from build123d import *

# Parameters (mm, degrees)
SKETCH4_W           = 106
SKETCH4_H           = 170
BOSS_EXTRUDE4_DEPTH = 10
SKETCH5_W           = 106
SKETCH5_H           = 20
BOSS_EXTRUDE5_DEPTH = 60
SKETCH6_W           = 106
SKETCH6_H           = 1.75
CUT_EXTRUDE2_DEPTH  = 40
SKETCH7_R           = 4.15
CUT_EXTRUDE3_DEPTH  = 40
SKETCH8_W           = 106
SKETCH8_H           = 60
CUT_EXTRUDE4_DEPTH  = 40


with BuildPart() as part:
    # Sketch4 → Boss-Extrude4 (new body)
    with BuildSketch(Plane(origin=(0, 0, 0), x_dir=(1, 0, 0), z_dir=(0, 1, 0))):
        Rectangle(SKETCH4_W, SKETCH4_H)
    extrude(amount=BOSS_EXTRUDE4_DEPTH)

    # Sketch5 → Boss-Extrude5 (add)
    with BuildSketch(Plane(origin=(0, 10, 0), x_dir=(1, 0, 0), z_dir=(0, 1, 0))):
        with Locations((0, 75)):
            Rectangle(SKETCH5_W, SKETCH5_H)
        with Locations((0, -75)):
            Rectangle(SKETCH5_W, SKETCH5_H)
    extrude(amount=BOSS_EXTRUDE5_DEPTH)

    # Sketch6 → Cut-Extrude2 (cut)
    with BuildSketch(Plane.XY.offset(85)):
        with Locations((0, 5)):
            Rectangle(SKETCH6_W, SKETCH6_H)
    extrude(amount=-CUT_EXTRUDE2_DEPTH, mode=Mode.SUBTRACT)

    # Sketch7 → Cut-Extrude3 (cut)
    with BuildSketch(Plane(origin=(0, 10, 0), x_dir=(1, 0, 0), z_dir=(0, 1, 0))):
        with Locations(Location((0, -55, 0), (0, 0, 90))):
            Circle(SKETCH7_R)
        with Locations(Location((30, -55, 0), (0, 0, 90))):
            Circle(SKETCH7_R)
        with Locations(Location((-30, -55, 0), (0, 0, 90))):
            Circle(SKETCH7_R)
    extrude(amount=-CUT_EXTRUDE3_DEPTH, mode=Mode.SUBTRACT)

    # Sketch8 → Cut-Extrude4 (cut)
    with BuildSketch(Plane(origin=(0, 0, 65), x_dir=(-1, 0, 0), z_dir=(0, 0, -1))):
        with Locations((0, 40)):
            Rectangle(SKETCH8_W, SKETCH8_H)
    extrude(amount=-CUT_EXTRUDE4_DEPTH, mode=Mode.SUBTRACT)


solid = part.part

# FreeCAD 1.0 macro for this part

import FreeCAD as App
import Part
import Sketcher

V = App.Vector


def add_polygon(sketch, points):
    """Adds a closed chain of lines whose ends are joined by coincident constraints."""
    first, n = sketch.GeometryCount, len(points)
    for a, b in zip(points, points[1:] + points[:1]):
        sketch.addGeometry(Part.LineSegment(App.Vector(*a, 0), App.Vector(*b, 0)), False)
    for i in range(n):
        sketch.addConstraint(Sketcher.Constraint("Coincident", first + i, 2, first + (i + 1) % n, 1))

doc = App.newDocument("Part")
body = doc.addObject("PartDesign::Body", "Body")

# Sketch on XZ plane
sketch1 = body.newObject("Sketcher::SketchObject", "Sketch")
sketch1.AttachmentSupport = (doc.getObject("XZ_Plane"), [""])
sketch1.MapMode = "FlatFace"
add_polygon(sketch1, [(-53, -85), (-53, 85), (53, 85), (53, -85)])  # lines 0-3
sketch1.addConstraint([
    Sketcher.Constraint("Vertical", 0),
    Sketcher.Constraint("Horizontal", 1),
    Sketcher.Constraint("Vertical", 2),
    Sketcher.Constraint("Horizontal", 3),
    Sketcher.Constraint("Symmetric", 0, 2, 2, 2, -1, 1),
    Sketcher.Constraint("DistanceX", 1, 1, 1, 2, 106.0),
    Sketcher.Constraint("DistanceY", 0, 1, 0, 2, 170.0),
])
pad1 = body.newObject("PartDesign::Pad", "Pad")
pad1.Profile = sketch1
pad1.Length = 10
pad1.Reversed = True

# Sketch on XZ plane
sketch2 = body.newObject("Sketcher::SketchObject", "Sketch001")
sketch2.AttachmentSupport = (doc.getObject("XZ_Plane"), [""])
sketch2.MapMode = "FlatFace"
sketch2.AttachmentOffset = App.Placement(V(0, 0, -10), App.Rotation())
add_polygon(sketch2, [(-53, -85), (-53, -65), (53, -65), (53, -85)])  # lines 0-3
add_polygon(sketch2, [(-53, 65), (-53, 85), (53, 85), (53, 65)])  # lines 4-7
sketch2.addConstraint([
    Sketcher.Constraint("Vertical", 0),
    Sketcher.Constraint("Horizontal", 1),
    Sketcher.Constraint("Vertical", 2),
    Sketcher.Constraint("Horizontal", 3),
    Sketcher.Constraint("Vertical", 4),
    Sketcher.Constraint("Horizontal", 5),
    Sketcher.Constraint("Vertical", 6),
    Sketcher.Constraint("Horizontal", 7),
    Sketcher.Constraint("Symmetric", 2, 2, 4, 2, -1, 1),
    Sketcher.Constraint("Symmetric", 0, 2, 6, 2, -1, 1),
    Sketcher.Constraint("Vertical", 3, 2, 4, 2),
    Sketcher.Constraint("DistanceX", 1, 1, 1, 2, 106.0),
    Sketcher.Constraint("DistanceY", 0, 1, 0, 2, 20.0),
    Sketcher.Constraint("DistanceY", 0, 2, -1, 1, 65.0),
])
pad2 = body.newObject("PartDesign::Pad", "Pad001")
pad2.Profile = sketch2
pad2.Length = 60
pad2.Reversed = True

# Sketch on XY plane
sketch3 = body.newObject("Sketcher::SketchObject", "Sketch002")
sketch3.AttachmentSupport = (doc.getObject("XY_Plane"), [""])
sketch3.MapMode = "FlatFace"
sketch3.AttachmentOffset = App.Placement(V(0, 0, 85), App.Rotation())
add_polygon(sketch3, [(-53, 5.9), (-53, 4.1), (53, 4.1), (53, 5.9)])  # lines 0-3
sketch3.addConstraint([
    Sketcher.Constraint("Vertical", 0),
    Sketcher.Constraint("Horizontal", 1),
    Sketcher.Constraint("Vertical", 2),
    Sketcher.Constraint("Horizontal", 3),
    Sketcher.Constraint("DistanceX", 1, 1, 1, 2, 106.0),
    Sketcher.Constraint("DistanceX", 0, 2, -1, 1, 53.0),
    Sketcher.Constraint("DistanceY", 0, 2, 0, 1, 1.75),
    Sketcher.Constraint("DistanceY", -1, 1, 0, 2, 4.125),
])
pocket1 = body.newObject("PartDesign::Pocket", "Pocket")
pocket1.Profile = sketch3
pocket1.Length = 40

# Sketch on XZ plane
sketch4 = body.newObject("Sketcher::SketchObject", "Sketch003")
sketch4.AttachmentSupport = (doc.getObject("XZ_Plane"), [""])
sketch4.MapMode = "FlatFace"
sketch4.AttachmentOffset = App.Placement(V(0, 0, -10), App.Rotation())
sketch4.addGeometry([
    Part.Circle(V(0, 55, 0), V(0, 0, 1), 4.2),
    Part.Circle(V(30, 55, 0), V(0, 0, 1), 4.2),
    Part.Circle(V(-30, 55, 0), V(0, 0, 1), 4.2),
], False)
sketch4.addConstraint([
    Sketcher.Constraint("Equal", 0, 1),
    Sketcher.Constraint("Equal", 1, 2),
    Sketcher.Constraint("Symmetric", 1, 3, 2, 3, -2),
    Sketcher.Constraint("PointOnObject", 0, 3, -2),
    Sketcher.Constraint("Horizontal", 0, 3, 1, 3),
    Sketcher.Constraint("Diameter", 0, 8.3),
    Sketcher.Constraint("DistanceY", -1, 1, 0, 3, 55.0),
    Sketcher.Constraint("DistanceX", -1, 1, 1, 3, 30.0),
])
pocket2 = body.newObject("PartDesign::Pocket", "Pocket001")
pocket2.Profile = sketch4
pocket2.Length = 40
pocket2.Reversed = True

# Sketch on XY plane
sketch5 = body.newObject("Sketcher::SketchObject", "Sketch004")
sketch5.AttachmentSupport = (doc.getObject("XY_Plane"), [""])
sketch5.MapMode = "FlatFace"
sketch5.AttachmentOffset = App.Placement(V(0, 0, 65), App.Rotation())
add_polygon(sketch5, [(53, 70), (53, 10), (-53, 10), (-53, 70)])  # lines 0-3
sketch5.addConstraint([
    Sketcher.Constraint("Vertical", 0),
    Sketcher.Constraint("Horizontal", 1),
    Sketcher.Constraint("Vertical", 2),
    Sketcher.Constraint("Horizontal", 3),
    Sketcher.Constraint("DistanceX", 1, 2, 1, 1, 106.0),
    Sketcher.Constraint("DistanceY", 0, 2, 0, 1, 60.0),
    Sketcher.Constraint("DistanceX", -1, 1, 0, 2, 53.0),
    Sketcher.Constraint("DistanceY", -1, 1, 0, 2, 10.0),
])
pocket3 = body.newObject("PartDesign::Pocket", "Pocket002")
pocket3.Profile = sketch5
pocket3.Length = 40
pocket3.Reversed = True

doc.recompute()
